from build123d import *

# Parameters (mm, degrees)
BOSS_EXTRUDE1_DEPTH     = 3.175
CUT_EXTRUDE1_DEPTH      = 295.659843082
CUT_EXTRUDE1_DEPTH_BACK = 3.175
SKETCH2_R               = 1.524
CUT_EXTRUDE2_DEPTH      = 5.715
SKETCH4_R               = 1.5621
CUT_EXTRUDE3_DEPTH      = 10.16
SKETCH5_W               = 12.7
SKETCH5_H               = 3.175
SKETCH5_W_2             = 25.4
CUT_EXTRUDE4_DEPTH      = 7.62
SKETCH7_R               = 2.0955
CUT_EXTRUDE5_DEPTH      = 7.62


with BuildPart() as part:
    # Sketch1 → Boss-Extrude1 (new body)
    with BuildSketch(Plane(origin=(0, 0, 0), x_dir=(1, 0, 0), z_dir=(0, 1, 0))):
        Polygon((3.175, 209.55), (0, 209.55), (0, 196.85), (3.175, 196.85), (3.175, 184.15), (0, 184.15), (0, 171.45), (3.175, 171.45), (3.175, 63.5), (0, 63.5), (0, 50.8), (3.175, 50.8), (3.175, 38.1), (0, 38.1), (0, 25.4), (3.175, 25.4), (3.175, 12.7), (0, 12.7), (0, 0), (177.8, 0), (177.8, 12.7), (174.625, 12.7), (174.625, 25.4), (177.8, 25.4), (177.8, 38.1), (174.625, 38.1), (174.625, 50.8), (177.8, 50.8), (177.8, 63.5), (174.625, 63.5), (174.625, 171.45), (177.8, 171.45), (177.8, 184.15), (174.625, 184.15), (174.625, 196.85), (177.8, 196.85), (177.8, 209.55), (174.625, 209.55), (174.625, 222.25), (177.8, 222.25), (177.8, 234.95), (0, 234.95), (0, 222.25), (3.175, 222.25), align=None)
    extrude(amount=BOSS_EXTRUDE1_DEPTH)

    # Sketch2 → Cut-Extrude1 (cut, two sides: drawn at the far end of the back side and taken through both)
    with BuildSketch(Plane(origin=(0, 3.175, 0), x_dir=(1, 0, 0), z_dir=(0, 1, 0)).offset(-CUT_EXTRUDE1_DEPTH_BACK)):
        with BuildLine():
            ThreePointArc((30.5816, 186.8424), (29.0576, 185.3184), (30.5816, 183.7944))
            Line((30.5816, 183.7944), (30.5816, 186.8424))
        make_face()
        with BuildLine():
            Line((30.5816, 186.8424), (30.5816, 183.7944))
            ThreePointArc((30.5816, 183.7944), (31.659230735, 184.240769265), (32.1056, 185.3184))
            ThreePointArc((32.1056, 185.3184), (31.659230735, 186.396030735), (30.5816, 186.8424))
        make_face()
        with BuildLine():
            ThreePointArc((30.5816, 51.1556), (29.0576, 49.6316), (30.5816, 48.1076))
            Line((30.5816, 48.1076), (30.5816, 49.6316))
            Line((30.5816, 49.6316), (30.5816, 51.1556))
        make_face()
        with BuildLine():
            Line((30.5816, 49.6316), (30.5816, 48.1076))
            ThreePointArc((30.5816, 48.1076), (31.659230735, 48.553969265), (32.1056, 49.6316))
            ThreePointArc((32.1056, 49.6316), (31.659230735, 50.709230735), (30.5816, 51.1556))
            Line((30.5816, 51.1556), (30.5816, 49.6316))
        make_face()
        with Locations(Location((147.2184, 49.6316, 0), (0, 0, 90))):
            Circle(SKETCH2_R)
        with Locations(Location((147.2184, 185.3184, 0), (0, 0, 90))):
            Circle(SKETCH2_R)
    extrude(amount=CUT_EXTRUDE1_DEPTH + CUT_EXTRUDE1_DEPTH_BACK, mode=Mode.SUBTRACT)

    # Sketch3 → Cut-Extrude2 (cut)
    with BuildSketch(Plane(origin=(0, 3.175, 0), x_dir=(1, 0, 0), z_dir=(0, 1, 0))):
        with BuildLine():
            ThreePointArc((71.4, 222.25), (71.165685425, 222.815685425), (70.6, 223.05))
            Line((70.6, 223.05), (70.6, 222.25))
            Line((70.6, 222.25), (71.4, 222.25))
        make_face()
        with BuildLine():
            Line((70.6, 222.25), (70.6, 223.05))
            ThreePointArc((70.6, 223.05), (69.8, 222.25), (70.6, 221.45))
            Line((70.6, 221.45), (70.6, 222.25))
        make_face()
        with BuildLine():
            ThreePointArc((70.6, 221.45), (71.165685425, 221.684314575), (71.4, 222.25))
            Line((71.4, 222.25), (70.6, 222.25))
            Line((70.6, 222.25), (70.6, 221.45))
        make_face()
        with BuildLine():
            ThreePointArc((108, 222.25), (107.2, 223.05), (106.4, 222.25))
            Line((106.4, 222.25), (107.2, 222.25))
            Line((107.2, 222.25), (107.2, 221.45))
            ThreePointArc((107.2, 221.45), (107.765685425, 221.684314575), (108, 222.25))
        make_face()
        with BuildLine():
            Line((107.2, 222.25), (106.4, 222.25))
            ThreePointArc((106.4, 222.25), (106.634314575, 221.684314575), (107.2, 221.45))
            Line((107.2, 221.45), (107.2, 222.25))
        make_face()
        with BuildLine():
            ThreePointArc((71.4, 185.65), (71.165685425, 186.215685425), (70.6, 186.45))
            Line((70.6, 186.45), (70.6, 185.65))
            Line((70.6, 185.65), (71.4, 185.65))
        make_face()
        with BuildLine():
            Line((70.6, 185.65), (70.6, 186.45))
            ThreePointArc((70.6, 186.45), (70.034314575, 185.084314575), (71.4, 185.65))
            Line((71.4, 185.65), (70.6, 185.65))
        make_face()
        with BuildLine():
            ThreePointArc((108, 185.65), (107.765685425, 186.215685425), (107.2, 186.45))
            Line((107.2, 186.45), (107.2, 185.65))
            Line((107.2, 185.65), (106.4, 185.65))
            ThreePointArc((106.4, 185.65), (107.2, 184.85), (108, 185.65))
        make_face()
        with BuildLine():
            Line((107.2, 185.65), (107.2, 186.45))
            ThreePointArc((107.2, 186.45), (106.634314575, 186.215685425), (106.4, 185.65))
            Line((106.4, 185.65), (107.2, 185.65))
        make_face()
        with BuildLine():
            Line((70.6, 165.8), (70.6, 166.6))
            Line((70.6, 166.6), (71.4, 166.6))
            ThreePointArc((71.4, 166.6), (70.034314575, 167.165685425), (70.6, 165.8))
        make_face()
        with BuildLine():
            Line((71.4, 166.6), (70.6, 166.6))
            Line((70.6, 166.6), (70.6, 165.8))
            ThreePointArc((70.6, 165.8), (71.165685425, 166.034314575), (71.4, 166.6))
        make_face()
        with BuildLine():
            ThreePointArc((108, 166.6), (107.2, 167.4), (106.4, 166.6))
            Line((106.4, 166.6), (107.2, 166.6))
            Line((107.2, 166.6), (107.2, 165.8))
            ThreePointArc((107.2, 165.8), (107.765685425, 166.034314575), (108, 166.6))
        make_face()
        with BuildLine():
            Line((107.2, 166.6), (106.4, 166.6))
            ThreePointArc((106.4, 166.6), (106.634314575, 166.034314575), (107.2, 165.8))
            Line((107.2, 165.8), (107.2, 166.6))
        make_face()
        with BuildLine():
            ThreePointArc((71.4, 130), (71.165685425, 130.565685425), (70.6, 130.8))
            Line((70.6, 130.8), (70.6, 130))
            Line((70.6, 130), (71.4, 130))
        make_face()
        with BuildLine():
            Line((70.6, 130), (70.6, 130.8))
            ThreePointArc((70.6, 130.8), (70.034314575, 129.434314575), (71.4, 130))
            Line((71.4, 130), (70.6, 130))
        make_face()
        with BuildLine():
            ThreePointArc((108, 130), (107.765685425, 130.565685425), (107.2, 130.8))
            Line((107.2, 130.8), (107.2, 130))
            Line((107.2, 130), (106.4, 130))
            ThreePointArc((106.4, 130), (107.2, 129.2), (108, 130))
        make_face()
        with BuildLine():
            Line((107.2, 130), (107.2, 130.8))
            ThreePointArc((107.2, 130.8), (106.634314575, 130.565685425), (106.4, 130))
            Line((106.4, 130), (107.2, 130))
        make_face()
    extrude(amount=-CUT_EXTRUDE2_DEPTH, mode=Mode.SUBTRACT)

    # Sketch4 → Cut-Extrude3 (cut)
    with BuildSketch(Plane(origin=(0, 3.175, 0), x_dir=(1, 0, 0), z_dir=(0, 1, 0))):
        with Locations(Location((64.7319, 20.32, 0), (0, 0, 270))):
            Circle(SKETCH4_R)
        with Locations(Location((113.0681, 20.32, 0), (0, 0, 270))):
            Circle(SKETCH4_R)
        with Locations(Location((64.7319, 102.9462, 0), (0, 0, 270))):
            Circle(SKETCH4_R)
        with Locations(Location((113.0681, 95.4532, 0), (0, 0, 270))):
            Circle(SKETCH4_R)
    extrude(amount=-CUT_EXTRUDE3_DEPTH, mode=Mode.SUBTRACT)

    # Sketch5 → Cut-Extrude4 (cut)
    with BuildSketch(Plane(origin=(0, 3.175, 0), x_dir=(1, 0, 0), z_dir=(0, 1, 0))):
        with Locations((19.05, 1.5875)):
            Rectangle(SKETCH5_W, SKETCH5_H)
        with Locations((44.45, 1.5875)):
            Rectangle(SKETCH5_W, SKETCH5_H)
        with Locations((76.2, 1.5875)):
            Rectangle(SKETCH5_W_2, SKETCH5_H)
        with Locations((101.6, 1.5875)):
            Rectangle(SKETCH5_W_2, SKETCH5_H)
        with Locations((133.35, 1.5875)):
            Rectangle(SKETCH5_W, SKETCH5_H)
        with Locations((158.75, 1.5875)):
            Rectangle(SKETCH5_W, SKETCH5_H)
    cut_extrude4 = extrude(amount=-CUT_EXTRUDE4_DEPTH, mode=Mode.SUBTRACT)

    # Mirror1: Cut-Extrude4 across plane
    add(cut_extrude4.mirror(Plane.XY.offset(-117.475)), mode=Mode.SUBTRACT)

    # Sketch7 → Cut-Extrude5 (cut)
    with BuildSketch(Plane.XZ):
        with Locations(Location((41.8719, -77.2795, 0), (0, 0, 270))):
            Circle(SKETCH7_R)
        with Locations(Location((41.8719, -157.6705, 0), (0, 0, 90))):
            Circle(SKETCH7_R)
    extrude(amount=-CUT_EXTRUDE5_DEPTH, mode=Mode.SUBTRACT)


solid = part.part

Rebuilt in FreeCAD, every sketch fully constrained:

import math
import FreeCAD as App
import Part
import Sketcher
Q = App.Units.Quantity


def add_polygon(sketch, points):
    """Adds a closed chain of lines whose ends are joined by coincident constraints."""
    first, n = sketch.GeometryCount, len(points)
    for a, b in zip(points, points[1:] + points[:1]):
        sketch.addGeometry(Part.LineSegment(App.Vector(*a, 0), App.Vector(*b, 0)), False)
    for i in range(n):
        sketch.addConstraint(Sketcher.Constraint("Coincident", first + i, 2, first + (i + 1) % n, 1))

doc = App.newDocument("Part")
body = doc.addObject("PartDesign::Body", "Body")

sketch1 = body.newObject("Sketcher::SketchObject", "Sketch")
sketch1.AttachmentSupport = (doc.getObject("XZ_Plane"), [""])
sketch1.MapMode = "FlatFace"
add_polygon(sketch1, [(3.175, -209.55), (0, -209.55), (0, -196.85), (3.175, -196.85), (3.175, -184.15), (0, -184.15), (0, -171.45), (3.175, -171.45), (3.175, -63.5), (0, -63.5), (0, -50.8), (3.175, -50.8), (3.175, -38.1), (0, -38.1), (0, -25.4), (3.175, -25.4), (3.175, -12.7), (0, -12.7), (0, 0), (177.8, 0), (177.8, -12.7), (174.625, -12.7), (174.625, -25.4), (177.8, -25.4), (177.8, -38.1), (174.625, -38.1), (174.625, -50.8), (177.8, -50.8), (177.8, -63.5), (174.625, -63.5), (174.625, -171.45), (177.8, -171.45), (177.8, -184.15), (174.625, -184.15), (174.625, -196.85), (177.8, -196.85), (177.8, -209.55), (174.625, -209.55), (174.625, -222.25), (177.8, -222.25), (177.8, -234.95), (0, -234.95), (0, -222.25), (3.175, -222.25)])
sketch1.addConstraint(Sketcher.Constraint("Horizontal", 0))
sketch1.addConstraint(Sketcher.Constraint("Vertical", 1))
sketch1.addConstraint(Sketcher.Constraint("Horizontal", 2))
sketch1.addConstraint(Sketcher.Constraint("Vertical", 3))
sketch1.addConstraint(Sketcher.Constraint("Horizontal", 4))
sketch1.addConstraint(Sketcher.Constraint("Vertical", 5))
sketch1.addConstraint(Sketcher.Constraint("Horizontal", 6))
sketch1.addConstraint(Sketcher.Constraint("Vertical", 7))
sketch1.addConstraint(Sketcher.Constraint("Horizontal", 8))
sketch1.addConstraint(Sketcher.Constraint("Vertical", 9))
sketch1.addConstraint(Sketcher.Constraint("Horizontal", 10))
sketch1.addConstraint(Sketcher.Constraint("Vertical", 11))
sketch1.addConstraint(Sketcher.Constraint("Horizontal", 12))
sketch1.addConstraint(Sketcher.Constraint("Vertical", 13))
sketch1.addConstraint(Sketcher.Constraint("Horizontal", 14))
sketch1.addConstraint(Sketcher.Constraint("Vertical", 15))
sketch1.addConstraint(Sketcher.Constraint("Horizontal", 16))
sketch1.addConstraint(Sketcher.Constraint("Vertical", 17))
sketch1.addConstraint(Sketcher.Constraint("Horizontal", 18))
sketch1.addConstraint(Sketcher.Constraint("Vertical", 19))
sketch1.addConstraint(Sketcher.Constraint("Horizontal", 20))
sketch1.addConstraint(Sketcher.Constraint("Vertical", 21))
sketch1.addConstraint(Sketcher.Constraint("Horizontal", 22))
sketch1.addConstraint(Sketcher.Constraint("Vertical", 23))
sketch1.addConstraint(Sketcher.Constraint("Horizontal", 24))
sketch1.addConstraint(Sketcher.Constraint("Vertical", 25))
sketch1.addConstraint(Sketcher.Constraint("Horizontal", 26))
sketch1.addConstraint(Sketcher.Constraint("Vertical", 27))
sketch1.addConstraint(Sketcher.Constraint("Horizontal", 28))
sketch1.addConstraint(Sketcher.Constraint("Vertical", 29))
sketch1.addConstraint(Sketcher.Constraint("Horizontal", 30))
sketch1.addConstraint(Sketcher.Constraint("Vertical", 31))
sketch1.addConstraint(Sketcher.Constraint("Horizontal", 32))
sketch1.addConstraint(Sketcher.Constraint("Vertical", 33))
sketch1.addConstraint(Sketcher.Constraint("Horizontal", 34))
sketch1.addConstraint(Sketcher.Constraint("Vertical", 35))
sketch1.addConstraint(Sketcher.Constraint("Horizontal", 36))
sketch1.addConstraint(Sketcher.Constraint("Vertical", 37))
sketch1.addConstraint(Sketcher.Constraint("Horizontal", 38))
sketch1.addConstraint(Sketcher.Constraint("Vertical", 39))
sketch1.addConstraint(Sketcher.Constraint("Horizontal", 40))
sketch1.addConstraint(Sketcher.Constraint("Vertical", 41))
sketch1.addConstraint(Sketcher.Constraint("Horizontal", 42))
sketch1.addConstraint(Sketcher.Constraint("Vertical", 43))
sketch1.addConstraint(Sketcher.Constraint("Coincident", 17, 2, -1, 1))
sketch1.addConstraint(Sketcher.Constraint("PointOnObject", 0, 2, -2))
sketch1.addConstraint(Sketcher.Constraint("PointOnObject", 4, 2, -2))
sketch1.addConstraint(Sketcher.Constraint("PointOnObject", 8, 2, -2))
sketch1.addConstraint(Sketcher.Constraint("PointOnObject", 12, 2, -2))
sketch1.addConstraint(Sketcher.Constraint("PointOnObject", 40, 2, -2))
sketch1.addConstraint(Sketcher.Constraint("Horizontal", 16, 2, 19, 2))
sketch1.addConstraint(Sketcher.Constraint("Horizontal", 14, 2, 21, 2))
sketch1.addConstraint(Sketcher.Constraint("Horizontal", 12, 2, 23, 2))
sketch1.addConstraint(Sketcher.Constraint("Horizontal", 10, 2, 25, 2))
sketch1.addConstraint(Sketcher.Constraint("Horizontal", 8, 2, 27, 2))
sketch1.addConstraint(Sketcher.Constraint("Horizontal", 6, 2, 29, 2))
sketch1.addConstraint(Sketcher.Constraint("Horizontal", 4, 2, 31, 2))
sketch1.addConstraint(Sketcher.Constraint("Horizontal", 2, 2, 33, 2))
sketch1.addConstraint(Sketcher.Constraint("Horizontal", 0, 2, 35, 2))
sketch1.addConstraint(Sketcher.Constraint("Horizontal", 38, 2, 41, 2))
sketch1.addConstraint(Sketcher.Constraint("Vertical", 3, 2, 6, 2))
sketch1.addConstraint(Sketcher.Constraint("Vertical", 7, 2, 10, 2))
sketch1.addConstraint(Sketcher.Constraint("Vertical", 11, 2, 14, 2))
sketch1.addConstraint(Sketcher.Constraint("Vertical", 19, 2, 22, 2))
sketch1.addConstraint(Sketcher.Constraint("Vertical", 21, 2, 24, 2))
sketch1.addConstraint(Sketcher.Constraint("Vertical", 23, 2, 26, 2))
sketch1.addConstraint(Sketcher.Constraint("Vertical", 25, 2, 28, 2))
sketch1.addConstraint(Sketcher.Constraint("Vertical", 27, 2, 30, 2))
sketch1.addConstraint(Sketcher.Constraint("Vertical", 29, 2, 32, 2))
sketch1.addConstraint(Sketcher.Constraint("Vertical", 31, 2, 34, 2))
sketch1.addConstraint(Sketcher.Constraint("Vertical", 33, 2, 36, 2))
sketch1.addConstraint(Sketcher.Constraint("Vertical", 35, 2, 38, 2))
sketch1.addConstraint(Sketcher.Constraint("Vertical", 15, 2, 42, 2))
sketch1.addConstraint(Sketcher.Constraint("Equal", 16, 20))
sketch1.addConstraint(Sketcher.Constraint("Equal", 1, 3))
sketch1.addConstraint(Sketcher.Constraint("Equal", 3, 5))
sketch1.addConstraint(Sketcher.Constraint("Equal", 5, 9))
sketch1.addConstraint(Sketcher.Constraint("Equal", 9, 11))
sketch1.addConstraint(Sketcher.Constraint("Equal", 11, 13))
sketch1.addConstraint(Sketcher.Constraint("Equal", 13, 15))
sketch1.addConstraint(Sketcher.Constraint("Equal", 15, 17))
sketch1.addConstraint(Sketcher.Constraint("Equal", 35, 37))
sketch1.addConstraint(Sketcher.Constraint("Equal", 37, 39))
sketch1.addConstraint(Sketcher.Constraint("DistanceX", 18, 1, 18, 2, Q("7 in")))
sketch1.addConstraint(Sketcher.Constraint("DistanceY", 1, 1, 1, 2, Q("0.5 in")))
sketch1.addConstraint(Sketcher.Constraint("DistanceY", 7, 1, 7, 2, Q("4.25 in")))
sketch1.addConstraint(Sketcher.Constraint("DistanceX", 0, 2, 0, 1, Q("0.125 in")))
pad1 = body.newObject("PartDesign::Pad", "Pad")
pad1.Profile = sketch1
pad1.Length = Q("0.125 in")
pad1.Reversed = True

sketch2 = body.newObject("Sketcher::SketchObject", "Sketch001")
sketch2.AttachmentSupport = (doc.getObject("XZ_Plane"), [""])
sketch2.MapMode = "FlatFace"
sketch2.AttachmentOffset = App.Placement(App.Vector(0, 0, -0.125 * 25.4), App.Rotation())
sketch2.addGeometry(Part.ArcOfCircle(Part.Circle(App.Vector(30.5816, -185.3184, 0), App.Vector(0, 0, 1), 1.524), math.radians(90), math.radians(270)), False)
sketch2.addGeometry(Part.ArcOfCircle(Part.Circle(App.Vector(30.5816, -185.3184, 0), App.Vector(0, 0, 1), 1.524), math.radians(0), math.radians(90)), False)
sketch2.addGeometry(Part.ArcOfCircle(Part.Circle(App.Vector(30.5816, -185.3184, 0), App.Vector(0, 0, 1), 1.524), math.radians(-90), math.radians(0)), False)
sketch2.addGeometry(Part.ArcOfCircle(Part.Circle(App.Vector(30.5816, -49.6316, 0), App.Vector(0, 0, 1), 1.524), math.radians(90), math.radians(270)), False)
sketch2.addGeometry(Part.ArcOfCircle(Part.Circle(App.Vector(30.5816, -49.6316, 0), App.Vector(0, 0, 1), 1.524), math.radians(0), math.radians(90)), False)
sketch2.addGeometry(Part.ArcOfCircle(Part.Circle(App.Vector(30.5816, -49.6316, 0), App.Vector(0, 0, 1), 1.524), math.radians(-90), math.radians(0)), False)
sketch2.addGeometry(Part.Circle(App.Vector(147.2184, -49.6316, 0), App.Vector(0, 0, 1), 1.524), False)
sketch2.addGeometry(Part.Circle(App.Vector(147.2184, -185.3184, 0), App.Vector(0, 0, 1), 1.524), False)
sketch2.addConstraint(Sketcher.Constraint("Tangent", 0, 1, 1, 2))
sketch2.addConstraint(Sketcher.Constraint("Tangent", 1, 1, 2, 2))
sketch2.addConstraint(Sketcher.Constraint("Tangent", 2, 1, 0, 2))
sketch2.addConstraint(Sketcher.Constraint("Tangent", 3, 1, 4, 2))
sketch2.addConstraint(Sketcher.Constraint("Tangent", 4, 1, 5, 2))
sketch2.addConstraint(Sketcher.Constraint("Tangent", 5, 1, 3, 2))
sketch2.addConstraint(Sketcher.Constraint("Equal", 2, 3))
sketch2.addConstraint(Sketcher.Constraint("Equal", 5, 6))
sketch2.addConstraint(Sketcher.Constraint("Equal", 6, 7))
sketch2.addConstraint(Sketcher.Constraint("Horizontal", 5, 3, 6, 3))
sketch2.addConstraint(Sketcher.Constraint("Horizontal", 2, 3, 7, 3))
sketch2.addConstraint(Sketcher.Constraint("Horizontal", 7, 3, 1, 1))
sketch2.addConstraint(Sketcher.Constraint("Horizontal", 6, 3, 4, 1))
sketch2.addConstraint(Sketcher.Constraint("Vertical", 2, 3, 3, 3))
sketch2.addConstraint(Sketcher.Constraint("Vertical", 6, 3, 7, 3))
sketch2.addConstraint(Sketcher.Constraint("Vertical", 5, 3, 0, 1))
sketch2.addConstraint(Sketcher.Constraint("Vertical", 0, 1, 2, 1))
sketch2.addConstraint(Sketcher.Constraint("Vertical", 2, 1, 3, 1))
sketch2.addConstraint(Sketcher.Constraint("Vertical", 3, 1, 5, 1))
sketch2.addConstraint(Sketcher.Constraint("Diameter", 6, Q("0.12 in")))
sketch2.addConstraint(Sketcher.Constraint("DistanceX", -1, 1, 0, 3, Q("1.204 in")))
sketch2.addConstraint(Sketcher.Constraint("DistanceY", 0, 3, -1, 1, Q("7.296 in")))
sketch2.addConstraint(Sketcher.Constraint("DistanceY", 3, 3, -1, 1, Q("1.954 in")))
sketch2.addConstraint(Sketcher.Constraint("DistanceX", -1, 1, 6, 3, Q("5.796 in")))
pocket1 = body.newObject("PartDesign::Pocket", "Pocket")
pocket1.Profile = sketch2
pocket1.Type = "ThroughAll"
pocket1.Midplane = True

sketch3 = body.newObject("Sketcher::SketchObject", "Sketch002")
sketch3.AttachmentSupport = (doc.getObject("XZ_Plane"), [""])
sketch3.MapMode = "FlatFace"
sketch3.AttachmentOffset = App.Placement(App.Vector(0, 0, -0.125 * 25.4), App.Rotation())
sketch3.addGeometry(Part.ArcOfCircle(Part.Circle(App.Vector(70.6, -222.25, 0), App.Vector(0, 0, 1), 0.8), math.radians(-90), math.radians(0)), False)
sketch3.addGeometry(Part.ArcOfCircle(Part.Circle(App.Vector(70.6, -222.25, 0), App.Vector(0, 0, 1), 0.8), math.radians(90), math.radians(270)), False)
sketch3.addGeometry(Part.ArcOfCircle(Part.Circle(App.Vector(70.6, -222.25, 0), App.Vector(0, 0, 1), 0.8), math.radians(0), math.radians(90)), False)
sketch3.addGeometry(Part.ArcOfCircle(Part.Circle(App.Vector(107.2, -222.25, 0), App.Vector(0, 0, 1), 0.8), math.radians(180), math.radians(360)), False)
sketch3.addGeometry(Part.ArcOfCircle(Part.Circle(App.Vector(107.2, -222.25, 0), App.Vector(0, 0, 1), 0.8), math.radians(90), math.radians(180)), False)
sketch3.addGeometry(Part.ArcOfCircle(Part.Circle(App.Vector(107.2, -222.25, 0), App.Vector(0, 0, 1), 0.8), math.radians(0), math.radians(90)), False)
sketch3.addGeometry(Part.ArcOfCircle(Part.Circle(App.Vector(70.6, -185.65, 0), App.Vector(0, 0, 1), 0.8), math.radians(-90), math.radians(0)), False)
sketch3.addGeometry(Part.ArcOfCircle(Part.Circle(App.Vector(70.6, -185.65, 0), App.Vector(0, 0, 1), 0.8), math.radians(0), math.radians(270)), False)
sketch3.addGeometry(Part.ArcOfCircle(Part.Circle(App.Vector(107.2, -185.65, 0), App.Vector(0, 0, 1), 0.8), math.radians(-90), math.radians(0)), False)
sketch3.addGeometry(Part.ArcOfCircle(Part.Circle(App.Vector(107.2, -185.65, 0), App.Vector(0, 0, 1), 0.8), math.radians(180), math.radians(270)), False)
sketch3.addGeometry(Part.ArcOfCircle(Part.Circle(App.Vector(107.2, -185.65, 0), App.Vector(0, 0, 1), 0.8), math.radians(0), math.radians(180)), False)
sketch3.addGeometry(Part.ArcOfCircle(Part.Circle(App.Vector(70.6, -166.6, 0), App.Vector(0, 0, 1), 0.8), math.radians(90), math.radians(360)), False)
sketch3.addGeometry(Part.ArcOfCircle(Part.Circle(App.Vector(70.6, -166.6, 0), App.Vector(0, 0, 1), 0.8), math.radians(0), math.radians(90)), False)
sketch3.addGeometry(Part.ArcOfCircle(Part.Circle(App.Vector(107.2, -166.6, 0), App.Vector(0, 0, 1), 0.8), math.radians(180), math.radians(360)), False)
sketch3.addGeometry(Part.ArcOfCircle(Part.Circle(App.Vector(107.2, -166.6, 0), App.Vector(0, 0, 1), 0.8), math.radians(90), math.radians(180)), False)
sketch3.addGeometry(Part.ArcOfCircle(Part.Circle(App.Vector(107.2, -166.6, 0), App.Vector(0, 0, 1), 0.8), math.radians(0), math.radians(90)), False)
sketch3.addGeometry(Part.ArcOfCircle(Part.Circle(App.Vector(70.6, -130, 0), App.Vector(0, 0, 1), 0.8), math.radians(-90), math.radians(0)), False)
sketch3.addGeometry(Part.ArcOfCircle(Part.Circle(App.Vector(70.6, -130, 0), App.Vector(0, 0, 1), 0.8), math.radians(0), math.radians(270)), False)
sketch3.addGeometry(Part.ArcOfCircle(Part.Circle(App.Vector(107.2, -130, 0), App.Vector(0, 0, 1), 0.8), math.radians(-90), math.radians(0)), False)
sketch3.addGeometry(Part.ArcOfCircle(Part.Circle(App.Vector(107.2, -130, 0), App.Vector(0, 0, 1), 0.8), math.radians(180), math.radians(270)), False)
sketch3.addGeometry(Part.ArcOfCircle(Part.Circle(App.Vector(107.2, -130, 0), App.Vector(0, 0, 1), 0.8), math.radians(0), math.radians(180)), False)
sketch3.addConstraint(Sketcher.Constraint("Tangent", 0, 1, 1, 2))
sketch3.addConstraint(Sketcher.Constraint("Tangent", 1, 1, 2, 2))
sketch3.addConstraint(Sketcher.Constraint("Tangent", 2, 1, 0, 2))
sketch3.addConstraint(Sketcher.Constraint("Tangent", 3, 1, 4, 2))
sketch3.addConstraint(Sketcher.Constraint("Tangent", 4, 1, 5, 2))
sketch3.addConstraint(Sketcher.Constraint("Tangent", 5, 1, 3, 2))
sketch3.addConstraint(Sketcher.Constraint("Tangent", 6, 1, 7, 2))
sketch3.addConstraint(Sketcher.Constraint("Coincident", 7, 1, 6, 2))
sketch3.addConstraint(Sketcher.Constraint("Tangent", 8, 1, 9, 2))
sketch3.addConstraint(Sketcher.Constraint("Tangent", 9, 1, 10, 2))
sketch3.addConstraint(Sketcher.Constraint("Tangent", 10, 1, 8, 2))
sketch3.addConstraint(Sketcher.Constraint("Tangent", 11, 1, 12, 2))
sketch3.addConstraint(Sketcher.Constraint("Coincident", 12, 1, 11, 2))
sketch3.addConstraint(Sketcher.Constraint("Tangent", 13, 1, 14, 2))
sketch3.addConstraint(Sketcher.Constraint("Tangent", 14, 1, 15, 2))
sketch3.addConstraint(Sketcher.Constraint("Tangent", 15, 1, 13, 2))
sketch3.addConstraint(Sketcher.Constraint("Tangent", 16, 1, 17, 2))
sketch3.addConstraint(Sketcher.Constraint("Coincident", 17, 1, 16, 2))
sketch3.addConstraint(Sketcher.Constraint("Tangent", 18, 1, 19, 2))
sketch3.addConstraint(Sketcher.Constraint("Tangent", 19, 1, 20, 2))
sketch3.addConstraint(Sketcher.Constraint("Tangent", 20, 1, 18, 2))
sketch3.addConstraint(Sketcher.Constraint("Equal", 2, 3))
sketch3.addConstraint(Sketcher.Constraint("Equal", 5, 6))
sketch3.addConstraint(Sketcher.Constraint("Equal", 7, 8))
sketch3.addConstraint(Sketcher.Constraint("Equal", 10, 11))
sketch3.addConstraint(Sketcher.Constraint("Equal", 12, 13))
sketch3.addConstraint(Sketcher.Constraint("Equal", 15, 16))
sketch3.addConstraint(Sketcher.Constraint("Equal", 17, 18))
sketch3.addConstraint(Sketcher.Constraint("Horizontal", 2, 3, 3, 3))
sketch3.addConstraint(Sketcher.Constraint("Horizontal", 7, 3, 8, 3))
sketch3.addConstraint(Sketcher.Constraint("Horizontal", 12, 3, 13, 3))
sketch3.addConstraint(Sketcher.Constraint("Horizontal", 17, 3, 18, 3))
sketch3.addConstraint(Sketcher.Constraint("Horizontal", 5, 3, 2, 1))
sketch3.addConstraint(Sketcher.Constraint("Horizontal", 2, 1, 3, 1))
sketch3.addConstraint(Sketcher.Constraint("Horizontal", 3, 1, 5, 1))
sketch3.addConstraint(Sketcher.Constraint("Horizontal", 10, 3, 7, 1))
sketch3.addConstraint(Sketcher.Constraint("Horizontal", 7, 1, 9, 1))
sketch3.addConstraint(Sketcher.Constraint("Horizontal", 9, 1, 10, 1))
sketch3.addConstraint(Sketcher.Constraint("Horizontal", 15, 3, 12, 1))
sketch3.addConstraint(Sketcher.Constraint("Horizontal", 12, 1, 13, 1))
sketch3.addConstraint(Sketcher.Constraint("Horizontal", 13, 1, 15, 1))
sketch3.addConstraint(Sketcher.Constraint("Horizontal", 20, 3, 17, 1))
sketch3.addConstraint(Sketcher.Constraint("Horizontal", 17, 1, 19, 1))
sketch3.addConstraint(Sketcher.Constraint("Horizontal", 19, 1, 20, 1))
sketch3.addConstraint(Sketcher.Constraint("Vertical", 2, 3, 6, 3))
sketch3.addConstraint(Sketcher.Constraint("Vertical", 5, 3, 8, 3))
sketch3.addConstraint(Sketcher.Constraint("Vertical", 7, 3, 11, 3))
sketch3.addConstraint(Sketcher.Constraint("Vertical", 10, 3, 13, 3))
sketch3.addConstraint(Sketcher.Constraint("Vertical", 12, 3, 16, 3))
sketch3.addConstraint(Sketcher.Constraint("Vertical", 15, 3, 18, 3))
sketch3.addConstraint(Sketcher.Constraint("Vertical", 17, 3, 0, 1))
sketch3.addConstraint(Sketcher.Constraint("Vertical", 0, 1, 1, 1))
sketch3.addConstraint(Sketcher.Constraint("Vertical", 20, 3, 4, 1))
sketch3.addConstraint(Sketcher.Constraint("Vertical", 1, 1, 6, 1))
sketch3.addConstraint(Sketcher.Constraint("Vertical", 4, 1, 8, 1))
sketch3.addConstraint(Sketcher.Constraint("Vertical", 6, 1, 11, 1))
sketch3.addConstraint(Sketcher.Constraint("Vertical", 8, 1, 14, 1))
sketch3.addConstraint(Sketcher.Constraint("Vertical", 11, 1, 16, 1))
sketch3.addConstraint(Sketcher.Constraint("Vertical", 14, 1, 18, 1))
sketch3.addConstraint(Sketcher.Constraint("DistanceY", 0, 3, -1, 1, Q("8.75 in")))
sketch3.addConstraint(Sketcher.Constraint("Radius", 0, Q("0.8 mm")))
sketch3.addConstraint(Sketcher.Constraint("DistanceY", 6, 3, 11, 3, Q("0.75 in")))
sketch3.addConstraint(Sketcher.Constraint("DistanceX", -1, 1, 0, 3, Q("70.6 mm")))
sketch3.addConstraint(Sketcher.Constraint("DistanceX", -1, 1, 3, 3, Q("107.2 mm")))
sketch3.addConstraint(Sketcher.Constraint("DistanceY", 6, 3, -1, 1, Q("185.65 mm")))
sketch3.addConstraint(Sketcher.Constraint("DistanceY", 16, 3, -1, 1, Q("130 mm")))
pocket2 = body.newObject("PartDesign::Pocket", "Pocket001")
pocket2.Profile = sketch3
pocket2.Length = Q("0.225 in")
pocket2.Reversed = True

sketch4 = body.newObject("Sketcher::SketchObject", "Sketch003")
sketch4.AttachmentSupport = (doc.getObject("XZ_Plane"), [""])
sketch4.MapMode = "FlatFace"
sketch4.AttachmentOffset = App.Placement(App.Vector(0, 0, -0.125 * 25.4), App.Rotation())
sketch4.addGeometry(Part.Circle(App.Vector(64.7319, -20.32, 0), App.Vector(0, 0, 1), 1.5621), False)
sketch4.addGeometry(Part.Circle(App.Vector(113.0681, -20.32, 0), App.Vector(0, 0, 1), 1.5621), False)
sketch4.addGeometry(Part.Circle(App.Vector(64.7319, -102.9462, 0), App.Vector(0, 0, 1), 1.5621), False)
sketch4.addGeometry(Part.Circle(App.Vector(113.0681, -95.4532, 0), App.Vector(0, 0, 1), 1.5621), False)
sketch4.addConstraint(Sketcher.Constraint("Equal", 0, 1))
sketch4.addConstraint(Sketcher.Constraint("Equal", 1, 2))
sketch4.addConstraint(Sketcher.Constraint("Equal", 2, 3))
sketch4.addConstraint(Sketcher.Constraint("Horizontal", 0, 3, 1, 3))
sketch4.addConstraint(Sketcher.Constraint("Vertical", 0, 3, 2, 3))
sketch4.addConstraint(Sketcher.Constraint("Vertical", 1, 3, 3, 3))
sketch4.addConstraint(Sketcher.Constraint("Diameter", 0, Q("0.123 in")))
sketch4.addConstraint(Sketcher.Constraint("DistanceY", 0, 3, -1, 1, Q("0.8 in")))
sketch4.addConstraint(Sketcher.Constraint("DistanceY", 2, 3, -1, 1, Q("4.053 in")))
sketch4.addConstraint(Sketcher.Constraint("DistanceY", 3, 3, -1, 1, Q("3.758 in")))
sketch4.addConstraint(Sketcher.Constraint("DistanceX", 0, 3, 1, 3, Q("1.903 in")))
sketch4.addConstraint(Sketcher.Constraint("DistanceX", -1, 1, 0, 3, Q("2.5485 in")))
pocket3 = body.newObject("PartDesign::Pocket", "Pocket002")
pocket3.Profile = sketch4
pocket3.Length = Q("0.4 in")
pocket3.Reversed = True

sketch5 = body.newObject("Sketcher::SketchObject", "Sketch004")
sketch5.AttachmentSupport = (doc.getObject("XZ_Plane"), [""])
sketch5.MapMode = "FlatFace"
sketch5.AttachmentOffset = App.Placement(App.Vector(0, 0, -0.125 * 25.4), App.Rotation())
add_polygon(sketch5, [(12.7, -3.175), (12.7, 0), (25.4, 0), (25.4, -3.175)])
add_polygon(sketch5, [(38.1, -3.175), (38.1, 0), (50.8, 0), (50.8, -3.175)])
add_polygon(sketch5, [(63.5, -3.175), (63.5, 0), (114.3, 0), (114.3, -3.175)])
add_polygon(sketch5, [(127, -3.175), (127, 0), (139.7, 0), (139.7, -3.175)])
add_polygon(sketch5, [(152.4, -3.175), (152.4, 0), (165.1, 0), (165.1, -3.175)])
sketch5.addConstraint(Sketcher.Constraint("Vertical", 0))
sketch5.addConstraint(Sketcher.Constraint("Horizontal", 1))
sketch5.addConstraint(Sketcher.Constraint("Vertical", 2))
sketch5.addConstraint(Sketcher.Constraint("Horizontal", 3))
sketch5.addConstraint(Sketcher.Constraint("Vertical", 4))
sketch5.addConstraint(Sketcher.Constraint("Horizontal", 5))
sketch5.addConstraint(Sketcher.Constraint("Vertical", 6))
sketch5.addConstraint(Sketcher.Constraint("Horizontal", 7))
sketch5.addConstraint(Sketcher.Constraint("Vertical", 8))
sketch5.addConstraint(Sketcher.Constraint("Horizontal", 9))
sketch5.addConstraint(Sketcher.Constraint("Vertical", 10))
sketch5.addConstraint(Sketcher.Constraint("Horizontal", 11))
sketch5.addConstraint(Sketcher.Constraint("Vertical", 12))
sketch5.addConstraint(Sketcher.Constraint("Horizontal", 13))
sketch5.addConstraint(Sketcher.Constraint("Vertical", 14))
sketch5.addConstraint(Sketcher.Constraint("Horizontal", 15))
sketch5.addConstraint(Sketcher.Constraint("Vertical", 16))
sketch5.addConstraint(Sketcher.Constraint("Horizontal", 17))
sketch5.addConstraint(Sketcher.Constraint("Vertical", 18))
sketch5.addConstraint(Sketcher.Constraint("Horizontal", 19))
sketch5.addConstraint(Sketcher.Constraint("PointOnObject", 0, 2, -1))
sketch5.addConstraint(Sketcher.Constraint("PointOnObject", 4, 2, -1))
sketch5.addConstraint(Sketcher.Constraint("PointOnObject", 8, 2, -1))
sketch5.addConstraint(Sketcher.Constraint("PointOnObject", 12, 2, -1))
sketch5.addConstraint(Sketcher.Constraint("PointOnObject", 16, 2, -1))
sketch5.addConstraint(Sketcher.Constraint("Horizontal", 3, 2, 6, 2))
sketch5.addConstraint(Sketcher.Constraint("Horizontal", 7, 2, 10, 2))
sketch5.addConstraint(Sketcher.Constraint("Horizontal", 11, 2, 14, 2))
sketch5.addConstraint(Sketcher.Constraint("Horizontal", 15, 2, 18, 2))
sketch5.addConstraint(Sketcher.Constraint("Equal", 3, 5))
sketch5.addConstraint(Sketcher.Constraint("Equal", 7, 13))
sketch5.addConstraint(Sketcher.Constraint("Equal", 15, 17))
sketch5.addConstraint(Sketcher.Constraint("DistanceX", 9, 1, 9, 2, Q("2 in")))
sketch5.addConstraint(Sketcher.Constraint("DistanceX", 1, 1, 1, 2, Q("0.5 in")))
sketch5.addConstraint(Sketcher.Constraint("DistanceX", -1, 1, 1, 2, Q("1 in")))
sketch5.addConstraint(Sketcher.Constraint("DistanceX", -1, 1, 5, 2, Q("2 in")))
sketch5.addConstraint(Sketcher.Constraint("DistanceX", -1, 1, 12, 2, Q("5 in")))
sketch5.addConstraint(Sketcher.Constraint("DistanceX", -1, 1, 16, 2, Q("6 in")))
sketch5.addConstraint(Sketcher.Constraint("DistanceX", 4, 2, 8, 2, Q("1 in")))
sketch5.addConstraint(Sketcher.Constraint("DistanceY", 0, 1, 0, 2, Q("0.125 in")))
pocket4 = body.newObject("PartDesign::Pocket", "Pocket003")
pocket4.Profile = sketch5
pocket4.Length = Q("0.3 in")
pocket4.Reversed = True
doc.recompute()

datumplane = body.newObject("PartDesign::Plane", "DatumPlane")
datumplane.AttachmentSupport = (doc.getObject("XY_Plane"), [""])
datumplane.MapMode = "FlatFace"
datumplane.AttachmentOffset = App.Placement(App.Vector(0, 0, -4.625 * 25.4), App.Rotation())
mirrored = body.newObject("PartDesign::Mirrored", "Mirrored")
mirrored.Originals = [pocket4]
mirrored.MirrorPlane = (datumplane, [""])
body.Tip = mirrored

sketch6 = body.newObject("Sketcher::SketchObject", "Sketch005")
sketch6.AttachmentSupport = (doc.getObject("XZ_Plane"), [""])
sketch6.MapMode = "FlatFace"
sketch6.addGeometry(Part.Circle(App.Vector(41.8719, -77.2795, 0), App.Vector(0, 0, 1), 2.0955), False)
sketch6.addGeometry(Part.Circle(App.Vector(41.8719, -157.6705, 0), App.Vector(0, 0, 1), 2.0955), False)
sketch6.addConstraint(Sketcher.Constraint("Equal", 0, 1))
sketch6.addConstraint(Sketcher.Constraint("Vertical", 0, 3, 1, 3))
sketch6.addConstraint(Sketcher.Constraint("Diameter", 0, Q("0.165 in")))
sketch6.addConstraint(Sketcher.Constraint("DistanceY", 1, 3, 0, 3, Q("3.165 in")))
sketch6.addConstraint(Sketcher.Constraint("DistanceX", -1, 1, 0, 3, Q("1.6485 in")))
sketch6.addConstraint(Sketcher.Constraint("DistanceY", 0, 3, -1, 1, Q("3.0425 in")))
pocket5 = body.newObject("PartDesign::Pocket", "Pocket004")
pocket5.Profile = sketch6
pocket5.Length = Q("0.3 in")

doc.recompute()
